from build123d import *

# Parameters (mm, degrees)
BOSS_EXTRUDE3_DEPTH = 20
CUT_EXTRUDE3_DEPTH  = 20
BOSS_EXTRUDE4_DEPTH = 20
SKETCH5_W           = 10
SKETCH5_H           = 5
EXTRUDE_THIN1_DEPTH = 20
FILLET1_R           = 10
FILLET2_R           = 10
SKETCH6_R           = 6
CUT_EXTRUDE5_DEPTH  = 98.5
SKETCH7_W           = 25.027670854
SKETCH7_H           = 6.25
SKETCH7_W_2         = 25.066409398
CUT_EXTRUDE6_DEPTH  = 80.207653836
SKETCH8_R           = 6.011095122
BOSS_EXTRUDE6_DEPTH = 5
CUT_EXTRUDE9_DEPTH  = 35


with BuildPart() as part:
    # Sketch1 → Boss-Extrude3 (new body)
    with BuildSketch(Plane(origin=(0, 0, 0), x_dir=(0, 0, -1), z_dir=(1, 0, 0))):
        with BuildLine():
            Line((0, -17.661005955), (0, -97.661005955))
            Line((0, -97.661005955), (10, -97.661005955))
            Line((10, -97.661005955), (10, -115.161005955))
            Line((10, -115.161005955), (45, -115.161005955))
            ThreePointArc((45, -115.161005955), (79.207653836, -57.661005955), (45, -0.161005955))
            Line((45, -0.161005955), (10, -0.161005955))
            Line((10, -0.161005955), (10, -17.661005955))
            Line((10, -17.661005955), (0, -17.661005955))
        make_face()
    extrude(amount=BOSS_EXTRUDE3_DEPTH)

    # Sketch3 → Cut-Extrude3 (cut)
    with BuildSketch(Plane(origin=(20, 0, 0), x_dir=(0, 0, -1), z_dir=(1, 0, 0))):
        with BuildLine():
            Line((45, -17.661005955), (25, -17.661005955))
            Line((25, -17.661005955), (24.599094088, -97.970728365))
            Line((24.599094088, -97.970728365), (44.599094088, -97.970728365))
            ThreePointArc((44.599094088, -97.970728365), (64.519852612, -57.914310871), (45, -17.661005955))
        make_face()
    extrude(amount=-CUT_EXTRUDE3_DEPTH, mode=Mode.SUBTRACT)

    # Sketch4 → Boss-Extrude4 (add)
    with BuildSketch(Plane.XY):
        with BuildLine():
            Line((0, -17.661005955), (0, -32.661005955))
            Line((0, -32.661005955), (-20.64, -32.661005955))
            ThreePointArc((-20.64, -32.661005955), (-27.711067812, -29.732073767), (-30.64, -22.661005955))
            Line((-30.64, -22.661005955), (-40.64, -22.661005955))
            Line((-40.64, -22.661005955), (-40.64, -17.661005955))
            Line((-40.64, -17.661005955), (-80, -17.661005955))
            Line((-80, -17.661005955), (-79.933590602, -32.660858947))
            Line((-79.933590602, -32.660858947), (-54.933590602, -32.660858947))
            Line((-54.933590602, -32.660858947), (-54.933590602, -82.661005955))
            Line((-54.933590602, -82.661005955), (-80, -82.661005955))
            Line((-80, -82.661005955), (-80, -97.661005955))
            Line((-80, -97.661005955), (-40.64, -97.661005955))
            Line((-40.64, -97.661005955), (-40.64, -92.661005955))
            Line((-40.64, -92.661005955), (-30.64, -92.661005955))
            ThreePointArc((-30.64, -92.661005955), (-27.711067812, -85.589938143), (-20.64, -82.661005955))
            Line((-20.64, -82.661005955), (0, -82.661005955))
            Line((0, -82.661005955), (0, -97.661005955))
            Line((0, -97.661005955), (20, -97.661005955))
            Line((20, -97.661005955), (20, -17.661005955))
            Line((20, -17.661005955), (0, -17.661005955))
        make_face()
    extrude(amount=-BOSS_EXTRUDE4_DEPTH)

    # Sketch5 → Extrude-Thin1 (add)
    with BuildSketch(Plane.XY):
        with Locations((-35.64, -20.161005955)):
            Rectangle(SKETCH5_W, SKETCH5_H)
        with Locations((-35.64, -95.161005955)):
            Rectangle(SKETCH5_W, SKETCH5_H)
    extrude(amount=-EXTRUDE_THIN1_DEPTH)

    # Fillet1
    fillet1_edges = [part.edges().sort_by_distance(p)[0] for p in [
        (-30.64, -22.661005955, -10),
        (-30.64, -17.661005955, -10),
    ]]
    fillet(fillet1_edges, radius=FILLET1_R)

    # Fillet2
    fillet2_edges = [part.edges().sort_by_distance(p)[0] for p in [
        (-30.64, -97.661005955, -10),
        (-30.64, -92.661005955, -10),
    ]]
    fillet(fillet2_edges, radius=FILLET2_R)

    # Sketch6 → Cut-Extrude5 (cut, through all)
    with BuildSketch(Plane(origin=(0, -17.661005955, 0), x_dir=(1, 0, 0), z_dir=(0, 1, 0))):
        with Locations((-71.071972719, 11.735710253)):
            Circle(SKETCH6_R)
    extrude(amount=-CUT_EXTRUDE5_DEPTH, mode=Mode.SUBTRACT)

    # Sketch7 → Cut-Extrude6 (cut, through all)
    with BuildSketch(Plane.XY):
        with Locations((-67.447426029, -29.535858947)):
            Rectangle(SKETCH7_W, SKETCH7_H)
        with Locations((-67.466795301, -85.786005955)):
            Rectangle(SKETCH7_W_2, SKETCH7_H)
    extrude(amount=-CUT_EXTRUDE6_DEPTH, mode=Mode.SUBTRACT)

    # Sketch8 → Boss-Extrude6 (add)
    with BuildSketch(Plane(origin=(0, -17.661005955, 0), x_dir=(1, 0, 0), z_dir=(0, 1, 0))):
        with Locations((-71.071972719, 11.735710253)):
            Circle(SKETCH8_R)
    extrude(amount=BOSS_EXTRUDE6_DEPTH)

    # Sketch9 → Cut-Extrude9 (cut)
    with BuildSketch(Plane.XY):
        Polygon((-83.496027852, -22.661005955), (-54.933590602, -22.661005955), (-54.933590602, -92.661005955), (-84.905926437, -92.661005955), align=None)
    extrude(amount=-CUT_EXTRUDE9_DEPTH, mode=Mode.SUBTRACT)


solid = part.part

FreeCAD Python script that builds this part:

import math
import FreeCAD as App
import Part
import Sketcher


def edges_at(feature, points):
    """Names of the edges that pass closest to the given points."""
    edges = feature.Shape.Edges
    near = lambda p: min(range(len(edges)), key=lambda i: edges[i].distToShape(Part.Vertex(*p))[0])
    return sorted({f"Edge{near(p) + 1}" for p in points})

doc = App.newDocument("Part")
params = doc.addObject("Spreadsheet::Sheet", "Params")
for row, (alias, value) in enumerate([
    ("sketch1_width", "80 mm"),
    ("sketch1_height", "10 mm"),
    ("sketch1_height2", "35 mm"),
    ("sketch1_radius", "65.43 mm"),
    ("sketch1_width2", "17.5 mm"),
    ("pad1_length", "20 mm"),
    ("sketch2_height", "20 mm"),
    ("pocket1_length", "20 mm"),
    ("sketch3_radius", "10 mm"),
    ("sketch3_width", "10 mm"),
    ("sketch3_width2", "25 mm"),
    ("sketch3_width3", "20 mm"),
    ("sketch3_height", "15 mm"),
    ("pad2_length", "20 mm"),
    ("sketch4_width", "10 mm"),
    ("sketch4_height", "5 mm"),
    ("pad3_length", "20 mm"),
    ("fillet_radius", "10 mm"),
    ("fillet2_radius", "10 mm"),
    ("sketch5_diameter", "12 mm"),
    ("sketch6_height", "6.25 mm"),
    ("pad4_length", "5 mm"),
    ("sketch8_height", "70 mm"),
    ("pocket4_length", "35 mm"),
], start=1):
    params.set(f"A{row}", alias)
    params.set(f"B{row}", "=" + value)
    params.setAlias(f"B{row}", alias)

body = doc.addObject("PartDesign::Body", "Body")

sketch1 = body.newObject("Sketcher::SketchObject", "Sketch")
sketch1.AttachmentSupport = (doc.getObject("YZ_Plane"), [""])
sketch1.MapMode = "FlatFace"
sketch1.addGeometry([
    Part.LineSegment(App.Vector(-18, 0, 0), App.Vector(-98, 0, 0)),
    Part.LineSegment(App.Vector(-98, 0, 0), App.Vector(-98, -10, 0)),
    Part.LineSegment(App.Vector(-98, -10, 0), App.Vector(-115, -10, 0)),
    Part.LineSegment(App.Vector(-115, -10, 0), App.Vector(-115, -45, 0)),
    Part.ArcOfCircle(Part.Circle(App.Vector(-58, -14, 0), App.Vector(0, 0, 1), 65), math.radians(-151), math.radians(-29)),
    Part.LineSegment(App.Vector(0, -45, 0), App.Vector(0, -10, 0)),
    Part.LineSegment(App.Vector(0, -10, 0), App.Vector(-18, -10, 0)),
    Part.LineSegment(App.Vector(-18, -10, 0), App.Vector(-18, 0, 0)),
], False)
sketch1.addConstraint([
    Sketcher.Constraint("Coincident", 0, 2, 1, 1),
    Sketcher.Constraint("Coincident", 1, 2, 2, 1),
    Sketcher.Constraint("Coincident", 2, 2, 3, 1),
    Sketcher.Constraint("Coincident", 3, 2, 4, 1),
    Sketcher.Constraint("Coincident", 4, 2, 5, 1),
    Sketcher.Constraint("Coincident", 5, 2, 6, 1),
    Sketcher.Constraint("Coincident", 6, 2, 7, 1),
    Sketcher.Constraint("Coincident", 7, 2, 0, 1),
    Sketcher.Constraint("Horizontal", 0),
    Sketcher.Constraint("Vertical", 1),
    Sketcher.Constraint("Horizontal", 2),
    Sketcher.Constraint("Vertical", 3),
    Sketcher.Constraint("Vertical", 5),
    Sketcher.Constraint("Horizontal", 6),
    Sketcher.Constraint("Vertical", 7),
    Sketcher.Constraint("PointOnObject", 0, 2, -1),
    Sketcher.Constraint("Horizontal", 3, 2, 4, 2),
    Sketcher.Constraint("Horizontal", 2, 2, 5, 2),
    Sketcher.Constraint("Equal", 2, 6),
    Sketcher.Constraint("DistanceX", 0, 2, 0, 1, 80.0),
    Sketcher.Constraint("DistanceY", 1, 2, 1, 1, 10.0),
    Sketcher.Constraint("DistanceY", 3, 2, 3, 1, 35.0),
    Sketcher.Constraint("Radius", 4, 65.43),
    Sketcher.Constraint("DistanceX", 2, 2, 2, 1, 17.5),
    Sketcher.Constraint("DistanceX", 4, 3, -1, 1, 57.661006),
])
sketch1.setExpression("Constraints[19]", "Params.sketch1_width")
sketch1.setExpression("Constraints[20]", "Params.sketch1_height")
sketch1.setExpression("Constraints[21]", "Params.sketch1_height2")
sketch1.setExpression("Constraints[22]", "Params.sketch1_radius")
sketch1.setExpression("Constraints[23]", "Params.sketch1_width2")
pad1 = body.newObject("PartDesign::Pad", "Pad")
pad1.Profile = sketch1
pad1.setExpression("Length", "Params.pad1_length")

sketch2 = body.newObject("Sketcher::SketchObject", "Sketch001")
sketch2.AttachmentSupport = (doc.getObject("YZ_Plane"), [""])
sketch2.MapMode = "FlatFace"
sketch2.AttachmentOffset = App.Placement(App.Vector(0, 0, 20), App.Rotation())
sketch2.addGeometry([
    Part.LineSegment(App.Vector(-18, -45, 0), App.Vector(-18, -25, 0)),
    Part.LineSegment(App.Vector(-18, -25, 0), App.Vector(-98, -25, 0)),
    Part.LineSegment(App.Vector(-98, -25, 0), App.Vector(-98, -45, 0)),
    Part.ArcOfCircle(Part.Circle(App.Vector(-58, -14, 0), App.Vector(0, 0, 1), 51), math.radians(-143), math.radians(-38)),
], False)
sketch2.addConstraint([
    Sketcher.Constraint("Coincident", 0, 2, 1, 1),
    Sketcher.Constraint("Coincident", 1, 2, 2, 1),
    Sketcher.Constraint("Coincident", 2, 2, 3, 1),
    Sketcher.Constraint("Coincident", 3, 2, 0, 1),
    Sketcher.Constraint("Vertical", 0),
    Sketcher.Constraint("Vertical", 2),
    Sketcher.Constraint("Equal", 0, 2),
    Sketcher.Constraint("DistanceY", 0, 1, 0, 2, 20.0),
    Sketcher.Constraint("DistanceY", 0, 2, -1, 1, 25.0),
    Sketcher.Constraint("DistanceX", 3, 3, 0, 2, 40.0),
    Sketcher.Constraint("Radius", 3, 50.742831),
    Sketcher.Constraint("DistanceX", 1, 2, -1, 1, 97.970728),
    Sketcher.Constraint("DistanceY", 1, 2, 3, 3, 10.82144),
])
sketch2.setExpression("Constraints[7]", "Params.sketch2_height")
pocket1 = body.newObject("PartDesign::Pocket", "Pocket")
pocket1.Profile = sketch2
pocket1.setExpression("Length", "Params.pocket1_length")

sketch3 = body.newObject("Sketcher::SketchObject", "Sketch002")
sketch3.AttachmentSupport = (doc.getObject("XY_Plane"), [""])
sketch3.MapMode = "FlatFace"
sketch3.addGeometry([
    Part.LineSegment(App.Vector(0, -18, 0), App.Vector(0, -33, 0)),
    Part.LineSegment(App.Vector(0, -33, 0), App.Vector(-21, -33, 0)),
    Part.ArcOfCircle(Part.Circle(App.Vector(-21, -23, 0), App.Vector(0, 0, 1), 10), math.radians(180), math.radians(270)),
    Part.LineSegment(App.Vector(-31, -23, 0), App.Vector(-41, -23, 0)),
    Part.LineSegment(App.Vector(-41, -23, 0), App.Vector(-41, -18, 0)),
    Part.LineSegment(App.Vector(-41, -18, 0), App.Vector(-80, -18, 0)),
    Part.LineSegment(App.Vector(-80, -18, 0), App.Vector(-80, -33, 0)),
    Part.LineSegment(App.Vector(-80, -33, 0), App.Vector(-55, -33, 0)),
    Part.LineSegment(App.Vector(-55, -33, 0), App.Vector(-55, -83, 0)),
    Part.LineSegment(App.Vector(-55, -83, 0), App.Vector(-80, -83, 0)),
    Part.LineSegment(App.Vector(-80, -83, 0), App.Vector(-80, -98, 0)),
    Part.LineSegment(App.Vector(-80, -98, 0), App.Vector(-41, -98, 0)),
    Part.LineSegment(App.Vector(-41, -98, 0), App.Vector(-41, -93, 0)),
    Part.LineSegment(App.Vector(-41, -93, 0), App.Vector(-31, -93, 0)),
    Part.ArcOfCircle(Part.Circle(App.Vector(-21, -93, 0), App.Vector(0, 0, 1), 10), math.radians(90), math.radians(180)),
    Part.LineSegment(App.Vector(-21, -83, 0), App.Vector(0, -83, 0)),
    Part.LineSegment(App.Vector(0, -83, 0), App.Vector(0, -98, 0)),
    Part.LineSegment(App.Vector(0, -98, 0), App.Vector(20, -98, 0)),
    Part.LineSegment(App.Vector(20, -98, 0), App.Vector(20, -18, 0)),
    Part.LineSegment(App.Vector(20, -18, 0), App.Vector(0, -18, 0)),
], False)
sketch3.addConstraint([
    Sketcher.Constraint("Coincident", 0, 2, 1, 1),
    Sketcher.Constraint("Tangent", 1, 2, 2, 2),
    Sketcher.Constraint("Coincident", 2, 1, 3, 1),
    Sketcher.Constraint("Coincident", 3, 2, 4, 1),
    Sketcher.Constraint("Coincident", 4, 2, 5, 1),
    Sketcher.Constraint("Coincident", 5, 2, 6, 1),
    Sketcher.Constraint("Coincident", 6, 2, 7, 1),
    Sketcher.Constraint("Coincident", 7, 2, 8, 1),
    Sketcher.Constraint("Coincident", 8, 2, 9, 1),
    Sketcher.Constraint("Coincident", 9, 2, 10, 1),
    Sketcher.Constraint("Coincident", 10, 2, 11, 1),
    Sketcher.Constraint("Coincident", 11, 2, 12, 1),
    Sketcher.Constraint("Coincident", 12, 2, 13, 1),
    Sketcher.Constraint("Coincident", 13, 2, 14, 2),
    Sketcher.Constraint("Tangent", 14, 1, 15, 1),
    Sketcher.Constraint("Coincident", 15, 2, 16, 1),
    Sketcher.Constraint("Coincident", 16, 2, 17, 1),
    Sketcher.Constraint("Coincident", 17, 2, 18, 1),
    Sketcher.Constraint("Coincident", 18, 2, 19, 1),
    Sketcher.Constraint("Coincident", 19, 2, 0, 1),
    Sketcher.Constraint("Vertical", 0),
    Sketcher.Constraint("Horizontal", 1),
    Sketcher.Constraint("Horizontal", 3),
    Sketcher.Constraint("Vertical", 4),
    Sketcher.Constraint("Horizontal", 5),
    Sketcher.Constraint("Horizontal", 7),
    Sketcher.Constraint("Vertical", 8),
    Sketcher.Constraint("Horizontal", 9),
    Sketcher.Constraint("Vertical", 10),
    Sketcher.Constraint("Horizontal", 11),
    Sketcher.Constraint("Vertical", 12),
    Sketcher.Constraint("Horizontal", 13),
    Sketcher.Constraint("Horizontal", 15),
    Sketcher.Constraint("Vertical", 16),
    Sketcher.Constraint("Horizontal", 17),
    Sketcher.Constraint("Vertical", 18),
    Sketcher.Constraint("Horizontal", 19),
    Sketcher.Constraint("Equal", 2, 14),
    Sketcher.Constraint("PointOnObject", 0, 2, -2),
    Sketcher.Constraint("PointOnObject", 15, 2, -2),
    Sketcher.Constraint("Horizontal", 14, 3, 12, 2),
    Sketcher.Constraint("Horizontal", 9, 2, 14, 1),
    Sketcher.Constraint("Horizontal", 11, 2, 16, 2),
    Sketcher.Constraint("Horizontal", 5, 2, 18, 2),
    Sketcher.Constraint("Vertical", 2, 3, 14, 3),
    Sketcher.Constraint("Vertical", 5, 2, 9, 2),
    Sketcher.Constraint("Vertical", 4, 2, 11, 2),
    Sketcher.Constraint("Equal", 0, 10),
    Sketcher.Constraint("Equal", 4, 12),
    Sketcher.Constraint("Radius", 2, 10.0),
    Sketcher.Constraint("DistanceX", 3, 2, 3, 1, 10.0),
    Sketcher.Constraint("DistanceX", 7, 1, 7, 2, 25.0),
    Sketcher.Constraint("DistanceX", 17, 1, 17, 2, 20.0),
    Sketcher.Constraint("DistanceY", 0, 2, 0, 1, 15.0),
    Sketcher.Constraint("DistanceY", 18, 1, 18, 2, 80.0),
    Sketcher.Constraint("Distance", 6, 15.0),
    Sketcher.Constraint("DistanceX", 5, 2, -1, 1, 80.0),
    Sketcher.Constraint("DistanceX", 1, 2, 1, 1, 20.64),
    Sketcher.Constraint("DistanceX", 9, 2, 9, 1, 25.066409),
    Sketcher.Constraint("DistanceY", 6, 2, -1, 1, 32.660859),
])
sketch3.setExpression("Constraints[49]", "Params.sketch3_radius")
sketch3.setExpression("Constraints[50]", "Params.sketch3_width")
sketch3.setExpression("Constraints[51]", "Params.sketch3_width2")
sketch3.setExpression("Constraints[52]", "Params.sketch3_width3")
sketch3.setExpression("Constraints[53]", "Params.sketch3_height")
pad2 = body.newObject("PartDesign::Pad", "Pad001")
pad2.Profile = sketch3
pad2.setExpression("Length", "Params.pad2_length")
pad2.Reversed = True

sketch4 = body.newObject("Sketcher::SketchObject", "Sketch003")
sketch4.AttachmentSupport = (doc.getObject("XY_Plane"), [""])
sketch4.MapMode = "FlatFace"
sketch4.addGeometry([
    Part.LineSegment(App.Vector(-41, -18, 0), App.Vector(-41, -23, 0)),
    Part.LineSegment(App.Vector(-41, -23, 0), App.Vector(-31, -23, 0)),
    Part.LineSegment(App.Vector(-31, -23, 0), App.Vector(-31, -18, 0)),
    Part.LineSegment(App.Vector(-31, -18, 0), App.Vector(-41, -18, 0)),
    Part.LineSegment(App.Vector(-41, -93, 0), App.Vector(-41, -98, 0)),
    Part.LineSegment(App.Vector(-41, -98, 0), App.Vector(-31, -98, 0)),
    Part.LineSegment(App.Vector(-31, -98, 0), App.Vector(-31, -93, 0)),
    Part.LineSegment(App.Vector(-31, -93, 0), App.Vector(-41, -93, 0)),
], False)
sketch4.addConstraint([
    Sketcher.Constraint("Coincident", 0, 2, 1, 1),
    Sketcher.Constraint("Coincident", 1, 2, 2, 1),
    Sketcher.Constraint("Coincident", 2, 2, 3, 1),
    Sketcher.Constraint("Coincident", 3, 2, 0, 1),
    Sketcher.Constraint("Coincident", 4, 2, 5, 1),
    Sketcher.Constraint("Coincident", 5, 2, 6, 1),
    Sketcher.Constraint("Coincident", 6, 2, 7, 1),
    Sketcher.Constraint("Coincident", 7, 2, 4, 1),
    Sketcher.Constraint("Vertical", 0),
    Sketcher.Constraint("Horizontal", 1),
    Sketcher.Constraint("Vertical", 2),
    Sketcher.Constraint("Horizontal", 3),
    Sketcher.Constraint("Vertical", 4),
    Sketcher.Constraint("Horizontal", 5),
    Sketcher.Constraint("Vertical", 6),
    Sketcher.Constraint("Horizontal", 7),
    Sketcher.Constraint("Vertical", 3, 2, 4, 2),
    Sketcher.Constraint("Vertical", 2, 2, 5, 2),
    Sketcher.Constraint("Equal", 2, 4),
    Sketcher.Constraint("DistanceX", 1, 1, 1, 2, 10.0),
    Sketcher.Constraint("DistanceY", 0, 2, 0, 1, 5.0),
    Sketcher.Constraint("DistanceY", 4, 2, 0, 2, 75.0),
    Sketcher.Constraint("DistanceX", 0, 2, -1, 1, 40.64),
    Sketcher.Constraint("DistanceY", 0, 2, -1, 1, 22.661006),
])
sketch4.setExpression("Constraints[19]", "Params.sketch4_width")
sketch4.setExpression("Constraints[20]", "Params.sketch4_height")
pad3 = body.newObject("PartDesign::Pad", "Pad002")
pad3.Profile = sketch4
pad3.setExpression("Length", "Params.pad3_length")
pad3.Reversed = True
doc.recompute()

fillet = body.newObject("PartDesign::Fillet", "Fillet")
fillet.Base = (pad3, edges_at(pad3, [(-30.64, -22.661, -10), (-30.64, -17.661, -10)]))
fillet.setExpression("Radius", "Params.fillet_radius")
doc.recompute()

fillet2 = body.newObject("PartDesign::Fillet", "Fillet001")
fillet2.Base = (fillet, edges_at(fillet, [(-30.64, -97.661, -10), (-30.64, -92.661, -10)]))
fillet2.setExpression("Radius", "Params.fillet2_radius")

sketch5 = body.newObject("Sketcher::SketchObject", "Sketch004")
sketch5.AttachmentSupport = (doc.getObject("XZ_Plane"), [""])
sketch5.MapMode = "FlatFace"
sketch5.AttachmentOffset = App.Placement(App.Vector(0, 0, 17.661006), App.Rotation())
sketch5.addGeometry(Part.Circle(App.Vector(-71, -12, 0), App.Vector(0, 0, 1), 6), False)
sketch5.addConstraint([
    Sketcher.Constraint("Diameter", 0, 12.0),
    Sketcher.Constraint("DistanceY", 0, 3, -1, 1, 11.73571),
    Sketcher.Constraint("DistanceX", 0, 3, -1, 1, 71.071973),
])
sketch5.setExpression("Constraints[0]", "Params.sketch5_diameter")
pocket2 = body.newObject("PartDesign::Pocket", "Pocket001")
pocket2.Profile = sketch5
pocket2.Type = "ThroughAll"
pocket2.Reversed = True

sketch6 = body.newObject("Sketcher::SketchObject", "Sketch005")
sketch6.AttachmentSupport = (doc.getObject("XY_Plane"), [""])
sketch6.MapMode = "FlatFace"
sketch6.addGeometry([
    Part.LineSegment(App.Vector(-80, -26, 0), App.Vector(-80, -33, 0)),
    Part.LineSegment(App.Vector(-80, -33, 0), App.Vector(-55, -33, 0)),
    Part.LineSegment(App.Vector(-55, -33, 0), App.Vector(-55, -26, 0)),
    Part.LineSegment(App.Vector(-55, -26, 0), App.Vector(-80, -26, 0)),
    Part.LineSegment(App.Vector(-80, -83, 0), App.Vector(-80, -89, 0)),
    Part.LineSegment(App.Vector(-80, -89, 0), App.Vector(-55, -89, 0)),
    Part.LineSegment(App.Vector(-55, -89, 0), App.Vector(-55, -83, 0)),
    Part.LineSegment(App.Vector(-55, -83, 0), App.Vector(-80, -83, 0)),
], False)
sketch6.addConstraint([
    Sketcher.Constraint("Coincident", 0, 2, 1, 1),
    Sketcher.Constraint("Coincident", 1, 2, 2, 1),
    Sketcher.Constraint("Coincident", 2, 2, 3, 1),
    Sketcher.Constraint("Coincident", 3, 2, 0, 1),
    Sketcher.Constraint("Coincident", 4, 2, 5, 1),
    Sketcher.Constraint("Coincident", 5, 2, 6, 1),
    Sketcher.Constraint("Coincident", 6, 2, 7, 1),
    Sketcher.Constraint("Coincident", 7, 2, 4, 1),
    Sketcher.Constraint("Vertical", 0),
    Sketcher.Constraint("Horizontal", 1),
    Sketcher.Constraint("Vertical", 2),
    Sketcher.Constraint("Horizontal", 3),
    Sketcher.Constraint("Vertical", 4),
    Sketcher.Constraint("Horizontal", 5),
    Sketcher.Constraint("Vertical", 6),
    Sketcher.Constraint("Horizontal", 7),
    Sketcher.Constraint("Vertical", 2, 2, 5, 2),
    Sketcher.Constraint("Equal", 2, 4),
    Sketcher.Constraint("DistanceX", 4, 2, -1, 1, 80.0),
    Sketcher.Constraint("DistanceY", 0, 2, 0, 1, 6.25),
    Sketcher.Constraint("DistanceX", 1, 1, 1, 2, 25.027671),
    Sketcher.Constraint("DistanceX", 5, 1, 5, 2, 25.066409),
    Sketcher.Constraint("DistanceY", 0, 2, -1, 1, 32.660859),
    Sketcher.Constraint("DistanceY", 4, 2, -1, 1, 88.911006),
])
sketch6.setExpression("Constraints[19]", "Params.sketch6_height")
pocket3 = body.newObject("PartDesign::Pocket", "Pocket002")
pocket3.Profile = sketch6
pocket3.Type = "ThroughAll"

sketch7 = body.newObject("Sketcher::SketchObject", "Sketch006")
sketch7.AttachmentSupport = (doc.getObject("XZ_Plane"), [""])
sketch7.MapMode = "FlatFace"
sketch7.AttachmentOffset = App.Placement(App.Vector(0, 0, 17.661006), App.Rotation())
sketch7.addGeometry(Part.Circle(App.Vector(-71, -12, 0), App.Vector(0, 0, 1), 6), False)
sketch7.addConstraint([
    Sketcher.Constraint("Diameter", 0, 12.02219),
    Sketcher.Constraint("DistanceY", 0, 3, -1, 1, 11.73571),
    Sketcher.Constraint("DistanceX", 0, 3, -1, 1, 71.071973),
])
pad4 = body.newObject("PartDesign::Pad", "Pad003")
pad4.Profile = sketch7
pad4.setExpression("Length", "Params.pad4_length")
pad4.Reversed = True

sketch8 = body.newObject("Sketcher::SketchObject", "Sketch007")
sketch8.AttachmentSupport = (doc.getObject("XY_Plane"), [""])
sketch8.MapMode = "FlatFace"
sketch8.addGeometry([
    Part.LineSegment(App.Vector(-55, -23, 0), App.Vector(-83, -23, 0)),
    Part.LineSegment(App.Vector(-83, -23, 0), App.Vector(-85, -93, 0)),
    Part.LineSegment(App.Vector(-85, -93, 0), App.Vector(-55, -93, 0)),
    Part.LineSegment(App.Vector(-55, -93, 0), App.Vector(-55, -23, 0)),
], False)
sketch8.addConstraint([
    Sketcher.Constraint("Coincident", 0, 2, 1, 1),
    Sketcher.Constraint("Coincident", 1, 2, 2, 1),
    Sketcher.Constraint("Coincident", 2, 2, 3, 1),
    Sketcher.Constraint("Coincident", 3, 2, 0, 1),
    Sketcher.Constraint("Horizontal", 0),
    Sketcher.Constraint("Horizontal", 2),
    Sketcher.Constraint("Vertical", 3),
    Sketcher.Constraint("DistanceY", 3, 1, 3, 2, 70.0),
    Sketcher.Constraint("DistanceX", 1, 2, 0, 2, 1.409899),
    Sketcher.Constraint("DistanceX", 0, 2, 0, 1, 28.562437),
    Sketcher.Constraint("DistanceX", 2, 2, -1, 1, 54.933591),
    Sketcher.Constraint("DistanceY", 0, 2, -1, 1, 22.661006),
])
sketch8.setExpression("Constraints[7]", "Params.sketch8_height")
pocket4 = body.newObject("PartDesign::Pocket", "Pocket003")
pocket4.Profile = sketch8
pocket4.setExpression("Length", "Params.pocket4_length")

doc.recompute()
